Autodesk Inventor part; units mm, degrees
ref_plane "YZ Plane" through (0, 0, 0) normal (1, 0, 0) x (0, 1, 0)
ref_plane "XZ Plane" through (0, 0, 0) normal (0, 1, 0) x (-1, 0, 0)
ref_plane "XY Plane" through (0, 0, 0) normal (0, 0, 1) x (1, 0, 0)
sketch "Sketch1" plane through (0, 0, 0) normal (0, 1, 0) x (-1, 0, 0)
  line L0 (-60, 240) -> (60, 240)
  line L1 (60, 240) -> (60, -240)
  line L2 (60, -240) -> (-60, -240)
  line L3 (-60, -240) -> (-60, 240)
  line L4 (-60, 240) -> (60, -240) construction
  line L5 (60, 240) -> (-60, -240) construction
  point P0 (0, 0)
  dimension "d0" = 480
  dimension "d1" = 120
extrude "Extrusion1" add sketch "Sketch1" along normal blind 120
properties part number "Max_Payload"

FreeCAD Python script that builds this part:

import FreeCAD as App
import Part
import Sketcher
from FreeCAD import Vector

doc = App.newDocument("Part")
body = doc.addObject("PartDesign::Body", "Body")

# Sketch on XZ plane
sketch1 = body.newObject("Sketcher::SketchObject", "Sketch")
sketch1.AttachmentSupport = (doc.getObject("XZ_Plane"), [""])
sketch1.MapMode = "FlatFace"
sketch1.addGeometry([
    Part.LineSegment(Vector(-60, 240, 0), Vector(60, 240, 0)),
    Part.LineSegment(Vector(60, 240, 0), Vector(60, -240, 0)),
    Part.LineSegment(Vector(60, -240, 0), Vector(-60, -240, 0)),
    Part.LineSegment(Vector(-60, -240, 0), Vector(-60, 240, 0)),
], False)
sketch1.addConstraint([
    Sketcher.Constraint("Coincident", 0, 2, 1, 1),
    Sketcher.Constraint("Coincident", 1, 2, 2, 1),
    Sketcher.Constraint("Coincident", 2, 2, 3, 1),
    Sketcher.Constraint("Coincident", 3, 2, 0, 1),
    Sketcher.Constraint("Horizontal", 0),
    Sketcher.Constraint("Vertical", 1),
    Sketcher.Constraint("Horizontal", 2),
    Sketcher.Constraint("Vertical", 3),
    Sketcher.Constraint("Symmetric", 0, 2, 2, 2, -1, 1),
    Sketcher.Constraint("DistanceX", 0, 1, 0, 2, 120.0),
    Sketcher.Constraint("DistanceY", 1, 2, 1, 1, 480.0),
])
pad1 = body.newObject("PartDesign::Pad", "Pad")
pad1.Profile = sketch1
pad1.Length = 120
pad1.Reversed = True

doc.recompute()
